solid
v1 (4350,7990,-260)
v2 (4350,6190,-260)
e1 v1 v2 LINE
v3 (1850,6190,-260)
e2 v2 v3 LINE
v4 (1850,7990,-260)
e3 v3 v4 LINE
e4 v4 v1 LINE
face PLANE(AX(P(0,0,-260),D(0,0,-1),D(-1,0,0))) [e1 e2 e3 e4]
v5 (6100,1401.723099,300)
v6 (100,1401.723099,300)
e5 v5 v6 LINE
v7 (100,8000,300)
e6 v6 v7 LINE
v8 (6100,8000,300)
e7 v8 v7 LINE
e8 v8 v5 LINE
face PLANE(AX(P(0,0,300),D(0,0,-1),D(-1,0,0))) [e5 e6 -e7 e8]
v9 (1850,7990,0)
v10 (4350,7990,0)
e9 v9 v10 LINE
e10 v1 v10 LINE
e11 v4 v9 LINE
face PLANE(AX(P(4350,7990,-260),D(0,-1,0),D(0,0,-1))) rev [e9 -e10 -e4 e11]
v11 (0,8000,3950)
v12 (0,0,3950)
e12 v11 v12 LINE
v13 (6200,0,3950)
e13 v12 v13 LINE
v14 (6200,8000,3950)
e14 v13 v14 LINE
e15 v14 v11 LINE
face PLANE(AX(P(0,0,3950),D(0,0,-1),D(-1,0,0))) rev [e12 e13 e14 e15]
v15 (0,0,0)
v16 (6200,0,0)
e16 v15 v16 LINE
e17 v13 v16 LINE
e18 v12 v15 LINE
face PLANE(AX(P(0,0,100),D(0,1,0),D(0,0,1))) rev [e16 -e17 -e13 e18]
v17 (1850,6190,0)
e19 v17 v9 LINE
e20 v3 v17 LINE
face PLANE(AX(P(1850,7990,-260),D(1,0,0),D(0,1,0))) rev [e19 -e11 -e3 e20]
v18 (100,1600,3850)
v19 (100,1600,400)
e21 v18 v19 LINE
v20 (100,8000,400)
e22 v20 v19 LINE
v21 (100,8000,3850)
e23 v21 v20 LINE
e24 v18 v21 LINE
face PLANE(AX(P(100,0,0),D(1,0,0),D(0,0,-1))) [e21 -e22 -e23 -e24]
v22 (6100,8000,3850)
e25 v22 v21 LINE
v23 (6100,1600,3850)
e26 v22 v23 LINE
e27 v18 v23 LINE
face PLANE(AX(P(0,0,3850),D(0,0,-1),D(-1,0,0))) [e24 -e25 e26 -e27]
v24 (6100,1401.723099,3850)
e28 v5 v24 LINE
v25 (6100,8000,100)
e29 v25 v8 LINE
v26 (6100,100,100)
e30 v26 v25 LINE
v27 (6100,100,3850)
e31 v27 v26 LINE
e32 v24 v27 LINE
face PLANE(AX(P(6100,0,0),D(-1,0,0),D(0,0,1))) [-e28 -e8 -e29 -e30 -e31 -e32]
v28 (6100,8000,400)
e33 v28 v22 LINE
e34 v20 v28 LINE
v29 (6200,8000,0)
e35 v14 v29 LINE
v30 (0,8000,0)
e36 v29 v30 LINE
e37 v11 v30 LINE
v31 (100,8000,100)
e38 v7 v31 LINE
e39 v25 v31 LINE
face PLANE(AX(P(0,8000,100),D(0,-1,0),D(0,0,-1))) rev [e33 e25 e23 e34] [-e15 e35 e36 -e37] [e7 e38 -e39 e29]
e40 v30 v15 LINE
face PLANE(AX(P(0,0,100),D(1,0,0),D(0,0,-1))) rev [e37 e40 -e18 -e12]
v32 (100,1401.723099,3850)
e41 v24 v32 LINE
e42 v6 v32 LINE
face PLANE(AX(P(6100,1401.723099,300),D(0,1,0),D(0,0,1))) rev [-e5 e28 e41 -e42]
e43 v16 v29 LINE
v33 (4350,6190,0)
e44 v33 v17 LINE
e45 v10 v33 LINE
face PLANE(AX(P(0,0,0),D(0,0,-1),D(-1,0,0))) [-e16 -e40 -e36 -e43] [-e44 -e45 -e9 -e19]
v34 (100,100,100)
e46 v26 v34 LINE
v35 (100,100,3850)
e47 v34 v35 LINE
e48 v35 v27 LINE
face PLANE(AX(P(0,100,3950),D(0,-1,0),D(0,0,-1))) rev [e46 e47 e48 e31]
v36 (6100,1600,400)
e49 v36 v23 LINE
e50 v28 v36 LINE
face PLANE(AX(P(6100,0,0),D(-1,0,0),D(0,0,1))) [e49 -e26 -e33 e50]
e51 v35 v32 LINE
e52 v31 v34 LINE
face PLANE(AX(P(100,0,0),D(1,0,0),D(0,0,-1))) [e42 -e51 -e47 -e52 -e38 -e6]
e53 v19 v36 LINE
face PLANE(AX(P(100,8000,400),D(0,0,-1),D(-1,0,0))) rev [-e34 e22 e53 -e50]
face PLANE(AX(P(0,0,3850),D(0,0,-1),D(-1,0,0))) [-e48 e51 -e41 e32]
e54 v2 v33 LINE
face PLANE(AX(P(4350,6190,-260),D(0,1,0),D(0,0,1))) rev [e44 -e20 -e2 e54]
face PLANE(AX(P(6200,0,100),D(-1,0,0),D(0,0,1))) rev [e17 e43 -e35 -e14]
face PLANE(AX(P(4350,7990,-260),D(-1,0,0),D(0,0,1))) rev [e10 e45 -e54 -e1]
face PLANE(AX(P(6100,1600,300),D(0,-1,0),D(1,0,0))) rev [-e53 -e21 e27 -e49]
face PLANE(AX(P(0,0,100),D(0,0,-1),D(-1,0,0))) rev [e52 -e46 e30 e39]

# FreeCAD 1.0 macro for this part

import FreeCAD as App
import Part
import Sketcher

V = App.Vector
Q = App.Units.Quantity

doc = App.newDocument("Part")
body = doc.addObject("PartDesign::Body", "Body")

sketch1 = doc.addObject("Sketcher::SketchObject", "Sketch")
body.addObject(sketch1)
sketch1.AttachmentSupport = (doc.XY_Plane, [""])
sketch1.MapMode = "FlatFace"
sketch1.addGeometry([
    Part.LineSegment(V(0, 8000, 0), V(0, 0, 0)),
    Part.LineSegment(V(0, 0, 0), V(6200, 0, 0)),
    Part.LineSegment(V(6200, 0, 0), V(6200, 8000, 0)),
    Part.LineSegment(V(6200, 8000, 0), V(0, 8000, 0)),
], False)
sketch1.addConstraint([
    Sketcher.Constraint("Coincident", 0, 2, 1, 1),
    Sketcher.Constraint("Coincident", 1, 2, 2, 1),
    Sketcher.Constraint("Coincident", 2, 2, 3, 1),
    Sketcher.Constraint("Coincident", 3, 2, 0, 1),
    Sketcher.Constraint("Vertical", 0),
    Sketcher.Constraint("Horizontal", 1),
    Sketcher.Constraint("Vertical", 2),
    Sketcher.Constraint("Horizontal", 3),
    Sketcher.Constraint("Coincident", 0, 2, -1, 1),
    Sketcher.Constraint("DistanceX", 1, 1, 1, 2, Q("6200 mm")),
    Sketcher.Constraint("DistanceY", 0, 2, 0, 1, Q("8000 mm")),
])
pad1 = doc.addObject("PartDesign::Pad", "Pad")
body.addObject(pad1)
pad1.Profile = sketch1
pad1.Length = 100

sketch2 = doc.addObject("Sketcher::SketchObject", "Sketch001")
body.addObject(sketch2)
sketch2.AttachmentSupport = (doc.XY_Plane, [""])
sketch2.MapMode = "FlatFace"
sketch2.AttachmentOffset = App.Placement(V(0, 0, 100), App.Rotation())
sketch2.addGeometry([
    Part.LineSegment(V(0, 100, 0), V(0, 0, 0)),
    Part.LineSegment(V(0, 0, 0), V(6200, 0, 0)),
    Part.LineSegment(V(6200, 0, 0), V(6200, 100, 0)),
    Part.LineSegment(V(6200, 100, 0), V(0, 100, 0)),
], False)
sketch2.addConstraint([
    Sketcher.Constraint("Coincident", 0, 2, 1, 1),
    Sketcher.Constraint("Coincident", 1, 2, 2, 1),
    Sketcher.Constraint("Coincident", 2, 2, 3, 1),
    Sketcher.Constraint("Coincident", 3, 2, 0, 1),
    Sketcher.Constraint("Vertical", 0),
    Sketcher.Constraint("Horizontal", 1),
    Sketcher.Constraint("Vertical", 2),
    Sketcher.Constraint("Horizontal", 3),
    Sketcher.Constraint("Coincident", 0, 2, -1, 1),
    Sketcher.Constraint("DistanceX", 1, 1, 1, 2, Q("6200 mm")),
    Sketcher.Constraint("DistanceY", 0, 2, 0, 1, Q("100 mm")),
])
pad2 = doc.addObject("PartDesign::Pad", "Pad001")
body.addObject(pad2)
pad2.Profile = sketch2
pad2.Length = 3850

sketch3 = doc.addObject("Sketcher::SketchObject", "Sketch002")
body.addObject(sketch3)
sketch3.AttachmentSupport = (doc.XY_Plane, [""])
sketch3.MapMode = "FlatFace"
sketch3.AttachmentOffset = App.Placement(V(0, 0, 3950), App.Rotation())
sketch3.addGeometry([
    Part.LineSegment(V(0, 8000, 0), V(0, 0, 0)),
    Part.LineSegment(V(0, 0, 0), V(6200, 0, 0)),
    Part.LineSegment(V(6200, 0, 0), V(6200, 8000, 0)),
    Part.LineSegment(V(6200, 8000, 0), V(0, 8000, 0)),
], False)
sketch3.addConstraint([
    Sketcher.Constraint("Coincident", 0, 2, 1, 1),
    Sketcher.Constraint("Coincident", 1, 2, 2, 1),
    Sketcher.Constraint("Coincident", 2, 2, 3, 1),
    Sketcher.Constraint("Coincident", 3, 2, 0, 1),
    Sketcher.Constraint("Vertical", 0),
    Sketcher.Constraint("Horizontal", 1),
    Sketcher.Constraint("Vertical", 2),
    Sketcher.Constraint("Horizontal", 3),
    Sketcher.Constraint("Coincident", 0, 2, -1, 1),
    Sketcher.Constraint("DistanceX", 1, 1, 1, 2, Q("6200 mm")),
    Sketcher.Constraint("DistanceY", 0, 2, 0, 1, Q("8000 mm")),
])
pad3 = doc.addObject("PartDesign::Pad", "Pad002")
body.addObject(pad3)
pad3.Profile = sketch3
pad3.Length = 100
pad3.Reversed = True

sketch4 = doc.addObject("Sketcher::SketchObject", "Sketch003")
body.addObject(sketch4)
sketch4.AttachmentSupport = (doc.YZ_Plane, [""])
sketch4.MapMode = "FlatFace"
sketch4.AttachmentOffset = App.Placement(V(0, 0, 6200), App.Rotation())
sketch4.addGeometry([
    Part.LineSegment(V(8000, 3850, 0), V(100, 3850, 0)),
    Part.LineSegment(V(100, 3850, 0), V(100, 100, 0)),
    Part.LineSegment(V(100, 100, 0), V(8000, 100, 0)),
    Part.LineSegment(V(8000, 100, 0), V(8000, 3850, 0)),
], False)
sketch4.addConstraint([
    Sketcher.Constraint("Coincident", 0, 2, 1, 1),
    Sketcher.Constraint("Coincident", 1, 2, 2, 1),
    Sketcher.Constraint("Coincident", 2, 2, 3, 1),
    Sketcher.Constraint("Coincident", 3, 2, 0, 1),
    Sketcher.Constraint("Horizontal", 0),
    Sketcher.Constraint("Vertical", 1),
    Sketcher.Constraint("Horizontal", 2),
    Sketcher.Constraint("Vertical", 3),
    Sketcher.Constraint("DistanceX", 0, 2, 0, 1, Q("7900 mm")),
    Sketcher.Constraint("DistanceY", 1, 2, 1, 1, Q("3750 mm")),
    Sketcher.Constraint("DistanceX", -1, 1, 0, 2, Q("100 mm")),
    Sketcher.Constraint("DistanceY", -1, 1, 0, 2, Q("3850 mm")),
])
pad4 = doc.addObject("PartDesign::Pad", "Pad003")
body.addObject(pad4)
pad4.Profile = sketch4
pad4.Length = 100
pad4.Reversed = True

sketch5 = doc.addObject("Sketcher::SketchObject", "Sketch004")
body.addObject(sketch5)
sketch5.AttachmentSupport = (doc.YZ_Plane, [""])
sketch5.MapMode = "FlatFace"
sketch5.addGeometry([
    Part.LineSegment(V(8000, 100, 0), V(100, 100, 0)),
    Part.LineSegment(V(100, 100, 0), V(100, 3850, 0)),
    Part.LineSegment(V(100, 3850, 0), V(8000, 3850, 0)),
    Part.LineSegment(V(8000, 3850, 0), V(8000, 100, 0)),
], False)
sketch5.addConstraint([
    Sketcher.Constraint("Coincident", 0, 2, 1, 1),
    Sketcher.Constraint("Coincident", 1, 2, 2, 1),
    Sketcher.Constraint("Coincident", 2, 2, 3, 1),
    Sketcher.Constraint("Coincident", 3, 2, 0, 1),
    Sketcher.Constraint("Horizontal", 0),
    Sketcher.Constraint("Vertical", 1),
    Sketcher.Constraint("Horizontal", 2),
    Sketcher.Constraint("Vertical", 3),
    Sketcher.Constraint("DistanceX", 0, 2, 0, 1, Q("7900 mm")),
    Sketcher.Constraint("DistanceY", 1, 1, 1, 2, Q("3750 mm")),
    Sketcher.Constraint("DistanceX", -1, 1, 0, 2, Q("100 mm")),
    Sketcher.Constraint("DistanceY", -1, 1, 0, 2, Q("100 mm")),
])
pad5 = doc.addObject("PartDesign::Pad", "Pad004")
body.addObject(pad5)
pad5.Profile = sketch5
pad5.Length = 100

sketch6 = doc.addObject("Sketcher::SketchObject", "Sketch005")
body.addObject(sketch6)
sketch6.AttachmentSupport = (doc.XY_Plane, [""])
sketch6.MapMode = "FlatFace"
sketch6.addGeometry([
    Part.LineSegment(V(4350, 7990, 0), V(4350, 6190, 0)),
    Part.LineSegment(V(4350, 6190, 0), V(1850, 6190, 0)),
    Part.LineSegment(V(1850, 6190, 0), V(1850, 7990, 0)),
    Part.LineSegment(V(1850, 7990, 0), V(4350, 7990, 0)),
], False)
sketch6.addConstraint([
    Sketcher.Constraint("Coincident", 0, 2, 1, 1),
    Sketcher.Constraint("Coincident", 1, 2, 2, 1),
    Sketcher.Constraint("Coincident", 2, 2, 3, 1),
    Sketcher.Constraint("Coincident", 3, 2, 0, 1),
    Sketcher.Constraint("Vertical", 0),
    Sketcher.Constraint("Horizontal", 1),
    Sketcher.Constraint("Vertical", 2),
    Sketcher.Constraint("Horizontal", 3),
    Sketcher.Constraint("DistanceX", 1, 2, 1, 1, Q("2500 mm")),
    Sketcher.Constraint("DistanceY", 0, 2, 0, 1, Q("1800 mm")),
    Sketcher.Constraint("DistanceX", -1, 1, 0, 2, Q("4350 mm")),
    Sketcher.Constraint("DistanceY", -1, 1, 0, 2, Q("6190 mm")),
])
pad6 = doc.addObject("PartDesign::Pad", "Pad005")
body.addObject(pad6)
pad6.Profile = sketch6
pad6.Length = 260
pad6.Reversed = True

sketch7 = doc.addObject("Sketcher::SketchObject", "Sketch006")
body.addObject(sketch7)
sketch7.AttachmentSupport = (doc.XY_Plane, [""])
sketch7.MapMode = "FlatFace"
sketch7.AttachmentOffset = App.Placement(V(0, 0, 3850), App.Rotation())
sketch7.addGeometry([
    Part.LineSegment(V(6100, 1600, 0), V(6100, 1401.723099, 0)),
    Part.LineSegment(V(6100, 1401.723099, 0), V(0, 1401.723099, 0)),
    Part.LineSegment(V(0, 1401.723099, 0), V(0, 1600, 0)),
    Part.LineSegment(V(0, 1600, 0), V(6100, 1600, 0)),
], False)
sketch7.addConstraint([
    Sketcher.Constraint("Coincident", 0, 2, 1, 1),
    Sketcher.Constraint("Coincident", 1, 2, 2, 1),
    Sketcher.Constraint("Coincident", 2, 2, 3, 1),
    Sketcher.Constraint("Coincident", 3, 2, 0, 1),
    Sketcher.Constraint("Vertical", 0),
    Sketcher.Constraint("Horizontal", 1),
    Sketcher.Constraint("Vertical", 2),
    Sketcher.Constraint("Horizontal", 3),
    Sketcher.Constraint("PointOnObject", 1, 2, -2),
    Sketcher.Constraint("DistanceX", 1, 2, 1, 1, Q("6100 mm")),
    Sketcher.Constraint("DistanceY", -1, 1, 2, 2, Q("1600 mm")),
    Sketcher.Constraint("DistanceY", 0, 2, 0, 1, Q("198.276901 mm")),
])
pad7 = doc.addObject("PartDesign::Pad", "Pad006")
body.addObject(pad7)
pad7.Profile = sketch7
pad7.Length = 3550
pad7.Reversed = True

sketch8 = doc.addObject("Sketcher::SketchObject", "Sketch007")
body.addObject(sketch8)
sketch8.AttachmentSupport = (doc.XZ_Plane, [""])
sketch8.MapMode = "FlatFace"
sketch8.AttachmentOffset = App.Placement(V(0, 0, -1600), App.Rotation())
sketch8.addGeometry([
    Part.LineSegment(V(100, 300, 0), V(100, 400, 0)),
    Part.LineSegment(V(100, 400, 0), V(6100, 400, 0)),
    Part.LineSegment(V(6100, 400, 0), V(6100, 300, 0)),
    Part.LineSegment(V(6100, 300, 0), V(100, 300, 0)),
], False)
sketch8.addConstraint([
    Sketcher.Constraint("Coincident", 0, 2, 1, 1),
    Sketcher.Constraint("Coincident", 1, 2, 2, 1),
    Sketcher.Constraint("Coincident", 2, 2, 3, 1),
    Sketcher.Constraint("Coincident", 3, 2, 0, 1),
    Sketcher.Constraint("Vertical", 0),
    Sketcher.Constraint("Horizontal", 1),
    Sketcher.Constraint("Vertical", 2),
    Sketcher.Constraint("Horizontal", 3),
    Sketcher.Constraint("DistanceX", 1, 1, 1, 2, Q("6000 mm")),
    Sketcher.Constraint("DistanceY", 0, 1, 0, 2, Q("100 mm")),
    Sketcher.Constraint("DistanceX", -1, 1, 0, 2, Q("100 mm")),
    Sketcher.Constraint("DistanceY", -1, 1, 0, 2, Q("400 mm")),
])
pad8 = doc.addObject("PartDesign::Pad", "Pad007")
body.addObject(pad8)
pad8.Profile = sketch8
pad8.Length = 6400
pad8.Reversed = True

doc.recompute()
